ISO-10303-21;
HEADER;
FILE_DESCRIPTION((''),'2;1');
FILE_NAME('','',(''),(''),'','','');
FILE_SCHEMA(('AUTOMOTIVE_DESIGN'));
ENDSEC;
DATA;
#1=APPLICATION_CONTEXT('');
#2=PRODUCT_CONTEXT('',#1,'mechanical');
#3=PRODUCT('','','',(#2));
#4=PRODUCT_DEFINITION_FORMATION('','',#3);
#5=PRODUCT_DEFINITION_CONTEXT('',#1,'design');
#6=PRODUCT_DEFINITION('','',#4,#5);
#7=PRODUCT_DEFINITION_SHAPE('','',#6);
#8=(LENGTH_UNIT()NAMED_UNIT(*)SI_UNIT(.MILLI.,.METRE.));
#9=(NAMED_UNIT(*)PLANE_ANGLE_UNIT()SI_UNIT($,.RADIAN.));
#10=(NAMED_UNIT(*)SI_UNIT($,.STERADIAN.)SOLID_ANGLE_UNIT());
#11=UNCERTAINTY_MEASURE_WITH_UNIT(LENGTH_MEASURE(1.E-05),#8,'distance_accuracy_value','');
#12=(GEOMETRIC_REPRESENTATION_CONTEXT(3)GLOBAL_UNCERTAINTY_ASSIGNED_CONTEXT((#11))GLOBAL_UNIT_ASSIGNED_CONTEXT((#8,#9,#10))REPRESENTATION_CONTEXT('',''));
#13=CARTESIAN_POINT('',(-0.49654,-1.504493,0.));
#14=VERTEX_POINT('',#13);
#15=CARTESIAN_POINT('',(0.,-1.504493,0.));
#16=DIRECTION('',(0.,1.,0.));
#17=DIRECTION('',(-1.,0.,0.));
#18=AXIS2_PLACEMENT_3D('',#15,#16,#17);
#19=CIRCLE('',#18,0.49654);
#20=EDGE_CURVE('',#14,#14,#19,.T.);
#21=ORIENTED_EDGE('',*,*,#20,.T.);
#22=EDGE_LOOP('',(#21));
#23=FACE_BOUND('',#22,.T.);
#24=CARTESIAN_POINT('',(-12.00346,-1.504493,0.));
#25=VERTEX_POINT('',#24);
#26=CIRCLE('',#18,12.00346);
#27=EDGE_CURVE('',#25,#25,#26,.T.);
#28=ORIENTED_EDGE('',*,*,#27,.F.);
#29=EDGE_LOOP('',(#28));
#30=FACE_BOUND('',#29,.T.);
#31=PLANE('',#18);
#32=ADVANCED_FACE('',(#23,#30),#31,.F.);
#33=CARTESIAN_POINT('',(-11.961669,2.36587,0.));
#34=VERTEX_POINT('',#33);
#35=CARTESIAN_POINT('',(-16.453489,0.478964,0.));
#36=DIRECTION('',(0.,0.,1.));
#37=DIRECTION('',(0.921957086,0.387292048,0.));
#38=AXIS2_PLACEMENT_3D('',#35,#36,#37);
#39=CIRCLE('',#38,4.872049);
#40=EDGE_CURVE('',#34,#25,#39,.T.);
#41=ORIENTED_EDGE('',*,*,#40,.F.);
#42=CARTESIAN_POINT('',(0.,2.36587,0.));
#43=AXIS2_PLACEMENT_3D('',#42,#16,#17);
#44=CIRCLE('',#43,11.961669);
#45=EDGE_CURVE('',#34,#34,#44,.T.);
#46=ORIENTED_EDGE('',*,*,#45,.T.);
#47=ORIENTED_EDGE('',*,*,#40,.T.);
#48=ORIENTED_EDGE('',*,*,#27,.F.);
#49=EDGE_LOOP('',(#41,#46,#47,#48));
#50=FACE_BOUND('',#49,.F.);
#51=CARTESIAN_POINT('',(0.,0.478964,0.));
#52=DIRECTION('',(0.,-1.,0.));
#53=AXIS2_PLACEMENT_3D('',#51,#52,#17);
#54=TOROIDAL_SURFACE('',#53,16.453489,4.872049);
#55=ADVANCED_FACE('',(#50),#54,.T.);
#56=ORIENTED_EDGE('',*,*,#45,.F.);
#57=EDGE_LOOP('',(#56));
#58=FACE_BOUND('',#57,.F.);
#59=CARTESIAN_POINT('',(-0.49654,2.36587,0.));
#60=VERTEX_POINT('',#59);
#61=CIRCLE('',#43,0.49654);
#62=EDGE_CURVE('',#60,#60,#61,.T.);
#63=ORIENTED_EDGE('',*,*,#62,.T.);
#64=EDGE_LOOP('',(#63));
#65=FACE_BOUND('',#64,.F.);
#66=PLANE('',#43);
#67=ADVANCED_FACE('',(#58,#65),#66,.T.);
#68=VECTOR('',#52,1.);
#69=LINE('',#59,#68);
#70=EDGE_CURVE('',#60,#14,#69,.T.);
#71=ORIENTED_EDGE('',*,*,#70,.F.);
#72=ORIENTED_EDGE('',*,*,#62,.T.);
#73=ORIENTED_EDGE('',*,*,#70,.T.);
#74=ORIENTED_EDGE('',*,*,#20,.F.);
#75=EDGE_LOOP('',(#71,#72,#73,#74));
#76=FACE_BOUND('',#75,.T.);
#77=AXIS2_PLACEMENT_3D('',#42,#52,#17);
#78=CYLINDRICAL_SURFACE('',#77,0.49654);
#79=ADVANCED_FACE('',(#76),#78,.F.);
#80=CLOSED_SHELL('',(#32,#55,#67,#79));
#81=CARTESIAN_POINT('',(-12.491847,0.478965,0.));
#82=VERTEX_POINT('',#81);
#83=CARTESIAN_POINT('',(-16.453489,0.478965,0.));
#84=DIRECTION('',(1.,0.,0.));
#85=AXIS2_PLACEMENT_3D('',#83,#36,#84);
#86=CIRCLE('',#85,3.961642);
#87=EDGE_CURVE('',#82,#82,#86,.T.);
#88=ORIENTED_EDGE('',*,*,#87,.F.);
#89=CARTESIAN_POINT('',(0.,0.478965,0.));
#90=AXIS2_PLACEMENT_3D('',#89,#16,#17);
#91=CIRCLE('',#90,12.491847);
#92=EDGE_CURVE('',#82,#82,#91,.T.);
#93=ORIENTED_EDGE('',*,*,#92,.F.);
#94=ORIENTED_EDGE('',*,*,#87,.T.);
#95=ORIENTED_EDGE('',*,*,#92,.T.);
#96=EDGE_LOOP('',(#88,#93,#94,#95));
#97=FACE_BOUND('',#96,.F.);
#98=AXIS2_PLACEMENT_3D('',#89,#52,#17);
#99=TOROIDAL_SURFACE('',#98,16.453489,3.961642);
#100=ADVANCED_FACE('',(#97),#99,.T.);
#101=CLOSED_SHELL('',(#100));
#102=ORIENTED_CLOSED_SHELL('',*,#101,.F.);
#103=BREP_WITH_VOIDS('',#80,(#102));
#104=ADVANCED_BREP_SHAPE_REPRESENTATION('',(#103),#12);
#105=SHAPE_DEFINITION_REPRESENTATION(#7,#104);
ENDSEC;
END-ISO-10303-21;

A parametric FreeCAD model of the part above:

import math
import FreeCAD as App
import Part
import Sketcher
from FreeCAD import Vector
Q = App.Units.Quantity

doc = App.newDocument("Part")
params = doc.addObject("Spreadsheet::Sheet", "Params")
for row, (alias, value) in enumerate([
    ("revolution_angle", "360 deg"),
], start=1):
    params.set(f"A{row}", alias)
    params.set(f"B{row}", "=" + value)
    params.setAlias(f"B{row}", alias)

body = doc.addObject("PartDesign::Body", "Body")

# Sketch on XY plane
sketch1 = body.newObject("Sketcher::SketchObject", "Sketch")
sketch1.AttachmentSupport = (doc.getObject("XY_Plane"), [""])
sketch1.MapMode = "FlatFace"
sketch1.addGeometry([
    Part.LineSegment(Vector(-0.5, -1.5, 0), Vector(-0.5, 2.4, 0)),  # 0
    Part.LineSegment(Vector(-0.5, 2.4, 0), Vector(-12, 2.4, 0)),  # 1
    Part.ArcOfCircle(Part.Circle(Vector(-16.5, 0.5, 0), Vector(0, 0, 1), 4.9), math.radians(23), math.radians(336)),  # 2
    Part.LineSegment(Vector(-12, -1.5, 0), Vector(-0.5, -1.5, 0)),  # 3
    Part.Circle(Vector(-16.5, 0.5, 0), Vector(0, 0, 1), 4),  # 4
], False)
sketch1.addConstraint([
    Sketcher.Constraint("Coincident", 0, 2, 1, 1),
    Sketcher.Constraint("Coincident", 1, 2, 2, 1),
    Sketcher.Constraint("Coincident", 2, 2, 3, 1),
    Sketcher.Constraint("Coincident", 3, 2, 0, 1),
    Sketcher.Constraint("Vertical", 0),
    Sketcher.Constraint("Horizontal", 1),
    Sketcher.Constraint("Horizontal", 3),
    Sketcher.Constraint("Coincident", 4, 3, 2, 3),
    Sketcher.Constraint("Radius", 2, Q("4.872049 mm")),
    Sketcher.Constraint("Diameter", 4, Q("7.923284 mm")),
    Sketcher.Constraint("DistanceX", 1, 2, 1, 1, Q("11.465129 mm")),
    Sketcher.Constraint("DistanceX", 3, 1, 3, 2, Q("11.50692 mm")),
    Sketcher.Constraint("DistanceY", 0, 1, 0, 2, Q("3.870363 mm")),
    Sketcher.Constraint("DistanceX", 2, 3, -1, 1, Q("16.453489 mm")),
    Sketcher.Constraint("DistanceY", -1, 1, 0, 2, Q("2.36587 mm")),
])
revolution = body.newObject("PartDesign::Revolution", "Revolution")
revolution.Profile = sketch1
revolution.ReferenceAxis = (sketch1, ["V_Axis"])
revolution.setExpression("Angle", "Params.revolution_angle")

doc.recompute()
